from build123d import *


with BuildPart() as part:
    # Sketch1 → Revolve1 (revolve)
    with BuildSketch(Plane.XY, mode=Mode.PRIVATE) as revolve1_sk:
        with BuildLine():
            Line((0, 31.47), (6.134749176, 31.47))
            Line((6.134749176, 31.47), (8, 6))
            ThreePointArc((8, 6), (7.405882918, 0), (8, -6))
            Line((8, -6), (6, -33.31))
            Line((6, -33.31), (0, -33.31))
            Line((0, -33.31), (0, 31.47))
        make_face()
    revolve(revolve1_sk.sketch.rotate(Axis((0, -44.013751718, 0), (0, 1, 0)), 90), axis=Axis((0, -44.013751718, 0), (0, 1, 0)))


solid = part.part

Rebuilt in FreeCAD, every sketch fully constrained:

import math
import FreeCAD as App
import Part
import Sketcher
Q = App.Units.Quantity

doc = App.newDocument("Part")
body = doc.addObject("PartDesign::Body", "Body")

# Sketch on XY plane
sketch1 = body.newObject("Sketcher::SketchObject", "Sketch")
sketch1.AttachmentSupport = (doc.getObject("XY_Plane"), [""])
sketch1.MapMode = "FlatFace"
sketch1.addGeometry([
    Part.LineSegment(App.Vector(6.134749, 31.47, 0), App.Vector(0, 31.47, 0)),  # 0
    Part.LineSegment(App.Vector(0, 31.47, 0), App.Vector(0, -33.31, 0)),  # 1
    Part.LineSegment(App.Vector(0, -33.31, 0), App.Vector(6, -33.31, 0)),  # 2
    Part.LineSegment(App.Vector(6, -33.31, 0), App.Vector(8, -6, 0)),  # 3
    Part.ArcOfCircle(Part.Circle(App.Vector(38, 0, 0), App.Vector(0, 0, 1), 30.594117), math.radians(168.690068), math.radians(191.309932)),  # 4
    Part.LineSegment(App.Vector(8, 6, 0), App.Vector(6.134749, 31.47, 0)),  # 5
], False)
sketch1.addConstraint([
    Sketcher.Constraint("Coincident", 0, 2, 1, 1),
    Sketcher.Constraint("Coincident", 1, 2, 2, 1),
    Sketcher.Constraint("Coincident", 2, 2, 3, 1),
    Sketcher.Constraint("Coincident", 3, 2, 4, 2),
    Sketcher.Constraint("Coincident", 4, 1, 5, 1),
    Sketcher.Constraint("Coincident", 5, 2, 0, 1),
    Sketcher.Constraint("Horizontal", 0),
    Sketcher.Constraint("Vertical", 1),
    Sketcher.Constraint("Horizontal", 2),
    Sketcher.Constraint("Symmetric", 3, 2, 4, 1, -1),
    Sketcher.Constraint("PointOnObject", 0, 2, -2),
    Sketcher.Constraint("DistanceX", 2, 1, 2, 2, Q("6 mm")),
    Sketcher.Constraint("DistanceX", -1, 1, 4, 3, Q("38 mm")),
    Sketcher.Constraint("DistanceX", -1, 1, 3, 2, Q("8 mm")),
    Sketcher.Constraint("DistanceY", 3, 2, -1, 1, Q("6 mm")),
    Sketcher.Constraint("DistanceY", 1, 2, 1, 1, Q("64.78 mm")),
    Sketcher.Constraint("DistanceY", -1, 1, 0, 2, Q("31.47 mm")),
    Sketcher.Constraint("DistanceX", 0, 2, 0, 1, Q("6.134749 mm")),
])
revolution = body.newObject("PartDesign::Revolution", "Revolution")
revolution.Profile = sketch1
revolution.ReferenceAxis = (sketch1, ["V_Axis"])
revolution.Angle = 360

doc.recompute()
